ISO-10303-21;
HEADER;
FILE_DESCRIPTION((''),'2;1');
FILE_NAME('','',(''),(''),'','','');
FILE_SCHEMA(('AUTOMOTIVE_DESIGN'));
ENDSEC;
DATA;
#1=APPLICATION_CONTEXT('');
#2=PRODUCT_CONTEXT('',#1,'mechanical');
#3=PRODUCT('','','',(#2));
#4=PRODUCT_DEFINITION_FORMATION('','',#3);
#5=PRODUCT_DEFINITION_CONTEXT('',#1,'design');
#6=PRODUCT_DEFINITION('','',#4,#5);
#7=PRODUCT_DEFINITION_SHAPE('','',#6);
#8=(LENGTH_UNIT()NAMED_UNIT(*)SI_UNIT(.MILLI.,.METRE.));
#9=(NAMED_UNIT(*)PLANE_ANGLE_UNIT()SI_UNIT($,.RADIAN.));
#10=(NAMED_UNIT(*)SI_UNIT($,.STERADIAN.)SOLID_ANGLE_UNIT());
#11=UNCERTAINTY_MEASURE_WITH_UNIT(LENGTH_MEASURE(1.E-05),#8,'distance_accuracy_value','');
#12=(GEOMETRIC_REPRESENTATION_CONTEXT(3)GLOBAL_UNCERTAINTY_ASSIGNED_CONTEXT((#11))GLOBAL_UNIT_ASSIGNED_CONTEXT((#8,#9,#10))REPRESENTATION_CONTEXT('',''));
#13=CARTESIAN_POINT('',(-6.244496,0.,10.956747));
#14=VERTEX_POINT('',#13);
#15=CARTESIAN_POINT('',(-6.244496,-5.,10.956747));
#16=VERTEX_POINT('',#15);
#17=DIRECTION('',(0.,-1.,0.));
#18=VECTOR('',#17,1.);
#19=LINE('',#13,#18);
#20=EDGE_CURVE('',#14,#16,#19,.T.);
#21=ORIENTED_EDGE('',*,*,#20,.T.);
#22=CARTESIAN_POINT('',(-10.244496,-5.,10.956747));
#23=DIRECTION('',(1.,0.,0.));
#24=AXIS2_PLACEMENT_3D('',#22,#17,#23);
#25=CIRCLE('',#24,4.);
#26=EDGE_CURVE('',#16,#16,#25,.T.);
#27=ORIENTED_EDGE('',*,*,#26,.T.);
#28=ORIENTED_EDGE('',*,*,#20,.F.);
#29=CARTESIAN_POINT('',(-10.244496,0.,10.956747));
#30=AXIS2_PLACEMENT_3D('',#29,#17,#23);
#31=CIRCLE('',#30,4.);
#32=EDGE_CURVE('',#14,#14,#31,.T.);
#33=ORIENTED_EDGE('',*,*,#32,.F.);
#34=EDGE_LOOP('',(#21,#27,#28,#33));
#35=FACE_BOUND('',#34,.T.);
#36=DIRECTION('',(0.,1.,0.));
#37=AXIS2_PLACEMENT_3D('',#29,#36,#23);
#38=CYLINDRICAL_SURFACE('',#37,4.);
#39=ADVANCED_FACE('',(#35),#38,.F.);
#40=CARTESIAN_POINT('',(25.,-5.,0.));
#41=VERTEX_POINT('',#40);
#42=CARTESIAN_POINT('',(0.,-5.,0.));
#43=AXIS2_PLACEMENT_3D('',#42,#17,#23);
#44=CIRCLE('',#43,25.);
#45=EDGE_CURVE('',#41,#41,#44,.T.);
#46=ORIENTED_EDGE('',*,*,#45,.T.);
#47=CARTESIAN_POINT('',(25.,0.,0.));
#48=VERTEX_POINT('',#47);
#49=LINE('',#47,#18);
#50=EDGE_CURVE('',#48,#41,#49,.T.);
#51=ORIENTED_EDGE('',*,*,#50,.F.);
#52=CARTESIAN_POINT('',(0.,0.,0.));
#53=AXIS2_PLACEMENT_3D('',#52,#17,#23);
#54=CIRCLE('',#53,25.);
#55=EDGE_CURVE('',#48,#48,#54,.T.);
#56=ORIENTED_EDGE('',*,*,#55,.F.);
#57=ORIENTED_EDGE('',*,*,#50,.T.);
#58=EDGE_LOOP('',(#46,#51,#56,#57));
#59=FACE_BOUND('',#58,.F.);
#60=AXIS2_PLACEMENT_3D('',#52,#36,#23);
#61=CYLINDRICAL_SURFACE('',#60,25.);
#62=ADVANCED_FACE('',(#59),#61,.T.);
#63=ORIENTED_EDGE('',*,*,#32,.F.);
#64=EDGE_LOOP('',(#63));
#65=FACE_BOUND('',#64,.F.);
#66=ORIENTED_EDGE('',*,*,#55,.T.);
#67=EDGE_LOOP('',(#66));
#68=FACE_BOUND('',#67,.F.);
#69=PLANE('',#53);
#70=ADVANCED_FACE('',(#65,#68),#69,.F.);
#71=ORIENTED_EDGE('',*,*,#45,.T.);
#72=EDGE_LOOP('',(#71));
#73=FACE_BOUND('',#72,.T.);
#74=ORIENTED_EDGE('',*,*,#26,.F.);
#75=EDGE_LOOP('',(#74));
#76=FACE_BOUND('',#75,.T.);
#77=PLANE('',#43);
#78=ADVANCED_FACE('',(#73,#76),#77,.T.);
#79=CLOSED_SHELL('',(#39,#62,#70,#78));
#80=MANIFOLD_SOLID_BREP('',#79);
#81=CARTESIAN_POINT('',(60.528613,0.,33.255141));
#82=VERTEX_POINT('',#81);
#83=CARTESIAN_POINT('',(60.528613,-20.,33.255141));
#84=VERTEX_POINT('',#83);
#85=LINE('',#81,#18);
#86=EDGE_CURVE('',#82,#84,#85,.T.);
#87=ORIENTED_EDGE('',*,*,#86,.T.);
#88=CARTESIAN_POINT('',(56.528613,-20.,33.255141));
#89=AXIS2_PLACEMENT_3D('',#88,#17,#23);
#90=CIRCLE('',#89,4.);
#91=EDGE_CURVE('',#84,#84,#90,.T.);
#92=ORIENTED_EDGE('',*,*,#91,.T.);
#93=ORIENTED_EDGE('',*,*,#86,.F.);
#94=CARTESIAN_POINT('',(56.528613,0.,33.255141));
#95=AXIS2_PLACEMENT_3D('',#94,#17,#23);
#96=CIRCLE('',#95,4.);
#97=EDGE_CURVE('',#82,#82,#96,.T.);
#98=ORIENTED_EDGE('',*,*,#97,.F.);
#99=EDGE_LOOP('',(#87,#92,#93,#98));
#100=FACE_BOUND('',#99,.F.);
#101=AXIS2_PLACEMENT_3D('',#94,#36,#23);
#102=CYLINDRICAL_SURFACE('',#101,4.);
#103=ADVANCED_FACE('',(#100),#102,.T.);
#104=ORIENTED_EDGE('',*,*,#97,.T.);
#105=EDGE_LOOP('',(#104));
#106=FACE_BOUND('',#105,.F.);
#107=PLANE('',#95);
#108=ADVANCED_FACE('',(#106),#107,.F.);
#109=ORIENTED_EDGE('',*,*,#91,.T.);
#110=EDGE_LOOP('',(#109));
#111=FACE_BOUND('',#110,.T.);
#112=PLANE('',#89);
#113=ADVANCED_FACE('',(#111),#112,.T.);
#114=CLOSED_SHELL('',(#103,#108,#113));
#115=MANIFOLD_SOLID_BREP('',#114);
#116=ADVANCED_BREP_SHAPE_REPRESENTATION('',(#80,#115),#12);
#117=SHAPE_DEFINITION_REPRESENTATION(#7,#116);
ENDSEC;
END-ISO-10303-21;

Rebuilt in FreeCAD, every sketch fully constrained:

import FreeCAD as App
import Part
import Sketcher

doc = App.newDocument("Part")
body = doc.addObject("PartDesign::Body", "Body")

sketch1 = body.newObject("Sketcher::SketchObject", "Sketch")
sketch1.AttachmentSupport = (doc.getObject("XZ_Plane"), [""])
sketch1.MapMode = "FlatFace"
sketch1.addGeometry([
    Part.Circle(App.Vector(0, 0, 0), App.Vector(0, 0, 1), 25),
    Part.Circle(App.Vector(-10.2, 11, 0), App.Vector(0, 0, 1), 4),
], False)
sketch1.addConstraint([
    Sketcher.Constraint("Coincident", 0, 3, -1, 1),
    Sketcher.Constraint("Diameter", 0, 50.0),
    Sketcher.Constraint("Diameter", 1, 8.0),
    Sketcher.Constraint("DistanceX", 1, 3, -1, 1, 10.244496),
    Sketcher.Constraint("DistanceY", -1, 1, 1, 3, 10.956747),
])
pad1 = body.newObject("PartDesign::Pad", "Pad")
pad1.Profile = sketch1
pad1.Length = 5
body2 = doc.addObject("PartDesign::Body", "Body001")

sketch2 = body2.newObject("Sketcher::SketchObject", "Sketch001")
sketch2.AttachmentSupport = (doc.getObject("XZ_Plane001"), [""])
sketch2.MapMode = "FlatFace"
sketch2.addGeometry(Part.Circle(App.Vector(56.5, 33.3, 0), App.Vector(0, 0, 1), 4), False)
sketch2.addConstraint([
    Sketcher.Constraint("Diameter", 0, 8.0),
    Sketcher.Constraint("DistanceY", -1, 1, 0, 3, 33.255141),
    Sketcher.Constraint("DistanceX", -1, 1, 0, 3, 56.528613),
])
pad2 = body2.newObject("PartDesign::Pad", "Pad001")
pad2.Profile = sketch2
pad2.Length = 20

doc.recompute()
